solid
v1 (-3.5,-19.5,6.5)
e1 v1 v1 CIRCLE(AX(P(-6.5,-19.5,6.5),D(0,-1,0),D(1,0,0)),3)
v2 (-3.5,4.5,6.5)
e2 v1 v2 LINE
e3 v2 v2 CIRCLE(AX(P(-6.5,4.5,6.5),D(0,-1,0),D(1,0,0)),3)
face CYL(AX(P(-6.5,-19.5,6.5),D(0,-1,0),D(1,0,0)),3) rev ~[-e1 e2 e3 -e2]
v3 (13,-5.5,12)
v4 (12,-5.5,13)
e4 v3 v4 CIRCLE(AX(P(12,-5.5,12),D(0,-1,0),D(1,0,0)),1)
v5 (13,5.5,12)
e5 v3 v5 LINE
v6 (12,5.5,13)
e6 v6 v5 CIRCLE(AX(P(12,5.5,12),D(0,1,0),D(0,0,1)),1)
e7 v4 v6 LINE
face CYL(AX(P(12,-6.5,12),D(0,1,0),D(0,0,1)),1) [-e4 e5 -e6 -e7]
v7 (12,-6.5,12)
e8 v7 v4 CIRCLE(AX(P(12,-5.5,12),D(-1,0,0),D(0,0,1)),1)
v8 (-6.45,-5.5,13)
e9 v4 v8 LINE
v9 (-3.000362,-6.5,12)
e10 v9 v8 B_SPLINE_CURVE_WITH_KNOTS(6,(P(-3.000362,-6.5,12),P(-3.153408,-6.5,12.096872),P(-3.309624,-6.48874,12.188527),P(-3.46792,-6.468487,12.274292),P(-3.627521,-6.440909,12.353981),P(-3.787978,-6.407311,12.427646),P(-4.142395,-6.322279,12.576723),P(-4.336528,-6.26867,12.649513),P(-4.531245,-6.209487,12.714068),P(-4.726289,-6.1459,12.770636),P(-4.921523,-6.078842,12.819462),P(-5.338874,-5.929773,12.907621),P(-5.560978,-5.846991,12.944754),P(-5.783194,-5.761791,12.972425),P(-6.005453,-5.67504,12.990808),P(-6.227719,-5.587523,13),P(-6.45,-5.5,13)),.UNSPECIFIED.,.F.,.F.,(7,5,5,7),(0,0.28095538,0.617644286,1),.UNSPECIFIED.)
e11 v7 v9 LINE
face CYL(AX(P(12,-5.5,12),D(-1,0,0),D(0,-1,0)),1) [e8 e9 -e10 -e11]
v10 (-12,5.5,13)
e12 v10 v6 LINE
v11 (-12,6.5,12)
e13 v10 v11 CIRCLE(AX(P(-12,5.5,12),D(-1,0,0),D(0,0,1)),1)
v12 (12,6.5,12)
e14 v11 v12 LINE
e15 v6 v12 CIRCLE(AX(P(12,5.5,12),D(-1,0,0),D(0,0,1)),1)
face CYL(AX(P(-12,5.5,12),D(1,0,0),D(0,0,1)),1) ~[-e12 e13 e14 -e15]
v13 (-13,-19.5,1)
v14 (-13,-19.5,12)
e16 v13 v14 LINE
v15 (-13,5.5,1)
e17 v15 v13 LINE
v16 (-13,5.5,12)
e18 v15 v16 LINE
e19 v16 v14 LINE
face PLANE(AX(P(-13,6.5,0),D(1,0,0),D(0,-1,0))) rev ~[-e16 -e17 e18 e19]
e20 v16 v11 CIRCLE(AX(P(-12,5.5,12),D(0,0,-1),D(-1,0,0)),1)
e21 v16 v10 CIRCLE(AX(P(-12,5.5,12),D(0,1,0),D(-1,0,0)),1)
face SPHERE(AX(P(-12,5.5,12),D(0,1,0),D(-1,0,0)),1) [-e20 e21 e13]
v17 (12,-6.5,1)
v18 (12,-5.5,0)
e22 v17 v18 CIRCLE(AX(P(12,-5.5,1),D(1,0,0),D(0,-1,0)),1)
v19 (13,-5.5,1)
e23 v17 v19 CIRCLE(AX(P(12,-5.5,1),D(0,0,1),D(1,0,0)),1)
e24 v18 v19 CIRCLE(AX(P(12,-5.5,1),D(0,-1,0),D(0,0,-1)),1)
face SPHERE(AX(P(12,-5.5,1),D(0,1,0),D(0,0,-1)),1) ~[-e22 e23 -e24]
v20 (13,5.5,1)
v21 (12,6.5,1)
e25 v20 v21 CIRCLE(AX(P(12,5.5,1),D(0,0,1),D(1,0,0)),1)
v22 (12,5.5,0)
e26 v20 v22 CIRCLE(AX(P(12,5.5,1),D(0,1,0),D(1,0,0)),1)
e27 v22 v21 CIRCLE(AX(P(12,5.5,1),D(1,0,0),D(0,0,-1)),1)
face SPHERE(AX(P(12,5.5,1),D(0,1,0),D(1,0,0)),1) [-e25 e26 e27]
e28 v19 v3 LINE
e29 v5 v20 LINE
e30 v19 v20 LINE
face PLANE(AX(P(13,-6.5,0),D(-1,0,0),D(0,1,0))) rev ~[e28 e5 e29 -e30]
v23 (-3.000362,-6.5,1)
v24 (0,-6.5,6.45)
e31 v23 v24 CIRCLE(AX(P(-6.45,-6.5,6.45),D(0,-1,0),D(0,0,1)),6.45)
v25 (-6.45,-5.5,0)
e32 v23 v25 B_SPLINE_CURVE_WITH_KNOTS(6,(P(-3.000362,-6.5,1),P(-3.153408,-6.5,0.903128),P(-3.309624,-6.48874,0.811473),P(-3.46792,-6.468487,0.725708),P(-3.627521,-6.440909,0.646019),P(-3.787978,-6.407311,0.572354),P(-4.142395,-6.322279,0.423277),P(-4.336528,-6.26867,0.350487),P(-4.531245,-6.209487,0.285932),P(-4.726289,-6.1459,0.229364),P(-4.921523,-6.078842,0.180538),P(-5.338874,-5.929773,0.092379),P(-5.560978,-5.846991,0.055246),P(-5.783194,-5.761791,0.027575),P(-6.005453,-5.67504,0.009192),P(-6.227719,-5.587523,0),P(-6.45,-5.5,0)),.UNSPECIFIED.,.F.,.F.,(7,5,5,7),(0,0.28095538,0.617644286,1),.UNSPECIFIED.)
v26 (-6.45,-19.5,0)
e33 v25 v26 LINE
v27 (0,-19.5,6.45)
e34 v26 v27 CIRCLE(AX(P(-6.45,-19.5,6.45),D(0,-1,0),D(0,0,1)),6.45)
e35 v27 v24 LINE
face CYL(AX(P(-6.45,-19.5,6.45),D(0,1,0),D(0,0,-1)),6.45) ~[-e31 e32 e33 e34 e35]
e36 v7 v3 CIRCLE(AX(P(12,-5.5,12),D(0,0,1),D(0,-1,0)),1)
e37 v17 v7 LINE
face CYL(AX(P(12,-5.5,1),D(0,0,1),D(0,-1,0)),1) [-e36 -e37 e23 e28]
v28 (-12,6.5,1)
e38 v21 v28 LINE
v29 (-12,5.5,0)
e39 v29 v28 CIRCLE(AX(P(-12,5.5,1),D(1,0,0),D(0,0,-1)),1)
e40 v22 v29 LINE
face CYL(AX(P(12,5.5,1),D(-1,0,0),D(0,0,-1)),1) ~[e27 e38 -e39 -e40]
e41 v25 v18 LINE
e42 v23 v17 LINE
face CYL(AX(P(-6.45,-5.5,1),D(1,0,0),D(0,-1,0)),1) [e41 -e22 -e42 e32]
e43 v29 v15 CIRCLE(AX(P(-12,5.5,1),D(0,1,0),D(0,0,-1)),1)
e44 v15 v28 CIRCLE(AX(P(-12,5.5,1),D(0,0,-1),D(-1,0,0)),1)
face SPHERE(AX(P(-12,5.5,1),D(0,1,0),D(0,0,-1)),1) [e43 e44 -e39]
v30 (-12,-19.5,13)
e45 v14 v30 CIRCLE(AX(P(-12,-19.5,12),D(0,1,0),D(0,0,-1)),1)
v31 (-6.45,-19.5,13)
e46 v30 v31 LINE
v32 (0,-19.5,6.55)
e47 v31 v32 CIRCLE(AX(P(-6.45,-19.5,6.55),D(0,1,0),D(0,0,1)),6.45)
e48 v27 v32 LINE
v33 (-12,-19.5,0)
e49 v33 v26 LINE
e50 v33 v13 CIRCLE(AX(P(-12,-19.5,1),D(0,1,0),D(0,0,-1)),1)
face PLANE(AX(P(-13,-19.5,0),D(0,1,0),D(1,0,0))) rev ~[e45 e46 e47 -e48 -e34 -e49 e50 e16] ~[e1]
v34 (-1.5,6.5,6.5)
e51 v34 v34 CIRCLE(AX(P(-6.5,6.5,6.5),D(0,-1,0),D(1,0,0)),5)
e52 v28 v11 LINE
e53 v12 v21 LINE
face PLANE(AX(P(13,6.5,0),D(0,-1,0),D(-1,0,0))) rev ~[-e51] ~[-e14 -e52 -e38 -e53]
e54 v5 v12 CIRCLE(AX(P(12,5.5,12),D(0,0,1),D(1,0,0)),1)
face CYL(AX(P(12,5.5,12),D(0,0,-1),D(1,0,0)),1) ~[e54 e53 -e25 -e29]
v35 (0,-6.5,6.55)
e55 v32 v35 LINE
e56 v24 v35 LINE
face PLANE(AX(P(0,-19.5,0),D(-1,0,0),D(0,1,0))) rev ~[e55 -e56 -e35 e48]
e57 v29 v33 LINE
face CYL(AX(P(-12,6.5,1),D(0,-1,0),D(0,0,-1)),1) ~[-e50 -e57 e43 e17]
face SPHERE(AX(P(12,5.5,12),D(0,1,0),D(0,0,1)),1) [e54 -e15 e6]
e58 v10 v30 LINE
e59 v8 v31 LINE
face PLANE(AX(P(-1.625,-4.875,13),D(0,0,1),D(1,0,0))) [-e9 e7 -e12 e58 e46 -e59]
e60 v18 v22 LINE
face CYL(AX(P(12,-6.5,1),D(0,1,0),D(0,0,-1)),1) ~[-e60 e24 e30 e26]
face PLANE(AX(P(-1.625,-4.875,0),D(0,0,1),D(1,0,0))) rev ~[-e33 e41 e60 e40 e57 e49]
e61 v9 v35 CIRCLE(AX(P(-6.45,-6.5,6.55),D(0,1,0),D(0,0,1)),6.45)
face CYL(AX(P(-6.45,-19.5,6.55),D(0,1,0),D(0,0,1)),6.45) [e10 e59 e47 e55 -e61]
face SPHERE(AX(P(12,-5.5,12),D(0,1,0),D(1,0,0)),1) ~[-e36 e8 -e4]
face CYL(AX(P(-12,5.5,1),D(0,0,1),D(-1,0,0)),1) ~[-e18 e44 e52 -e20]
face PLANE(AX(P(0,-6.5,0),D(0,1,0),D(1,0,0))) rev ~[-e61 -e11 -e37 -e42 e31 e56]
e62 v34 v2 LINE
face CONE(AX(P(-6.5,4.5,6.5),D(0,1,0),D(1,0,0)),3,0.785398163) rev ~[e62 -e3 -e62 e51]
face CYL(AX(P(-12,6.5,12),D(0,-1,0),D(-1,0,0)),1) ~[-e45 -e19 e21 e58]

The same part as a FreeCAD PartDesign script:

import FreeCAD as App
import Part
import Sketcher

V = App.Vector
Q = App.Units.Quantity


def edges_at(feature, points):
    """Names of the edges that pass closest to the given points."""
    edges = feature.Shape.Edges
    near = lambda p: min(range(len(edges)), key=lambda i: edges[i].distToShape(Part.Vertex(*p))[0])
    return sorted({f"Edge{near(p) + 1}" for p in points})

doc = App.newDocument("Part")
body = doc.addObject("PartDesign::Body", "Body")

sketch1 = doc.addObject("Sketcher::SketchObject", "Sketch")
body.addObject(sketch1)
sketch1.AttachmentSupport = (doc.XY_Plane, [""])
sketch1.MapMode = "FlatFace"
sketch1.addGeometry([
    Part.LineSegment(V(-13, 6, 0), V(-13, -20, 0)),
    Part.LineSegment(V(-13, -20, 0), V(0, -20, 0)),
    Part.LineSegment(V(0, -20, 0), V(0, -6, 0)),
    Part.LineSegment(V(0, -6, 0), V(13, -6, 0)),
    Part.LineSegment(V(13, -6, 0), V(13, 6, 0)),
    Part.LineSegment(V(13, 6, 0), V(-13, 6, 0)),
], False)
sketch1.addConstraint([
    Sketcher.Constraint("Coincident", 0, 2, 1, 1),
    Sketcher.Constraint("Coincident", 1, 2, 2, 1),
    Sketcher.Constraint("Coincident", 2, 2, 3, 1),
    Sketcher.Constraint("Coincident", 3, 2, 4, 1),
    Sketcher.Constraint("Coincident", 4, 2, 5, 1),
    Sketcher.Constraint("Coincident", 5, 2, 0, 1),
    Sketcher.Constraint("Vertical", 0),
    Sketcher.Constraint("Horizontal", 1),
    Sketcher.Constraint("Vertical", 2),
    Sketcher.Constraint("Horizontal", 3),
    Sketcher.Constraint("Vertical", 4),
    Sketcher.Constraint("Horizontal", 5),
    Sketcher.Constraint("Symmetric", 3, 2, 5, 2, -1, 1),
    Sketcher.Constraint("PointOnObject", 1, 2, -2),
    Sketcher.Constraint("Equal", 5, 0),
    Sketcher.Constraint("Equal", 3, 2),
    Sketcher.Constraint("DistanceX", 1, 1, 1, 2, Q("13 mm")),
])
pad1 = doc.addObject("PartDesign::Pad", "Pad")
body.addObject(pad1)
pad1.Profile = sketch1
pad1.Length = 13

sketch2 = doc.addObject("Sketcher::SketchObject", "Sketch001")
body.addObject(sketch2)
sketch2.AttachmentSupport = (doc.XZ_Plane, [""])
sketch2.MapMode = "FlatFace"
sketch2.AttachmentOffset = App.Placement(V(0, 0, 19.5), App.Rotation())
sketch2.addGeometry(Part.Circle(V(-6.5, 6.5, 0), V(0, 0, 1), 3), False)
sketch2.addConstraint([
    Sketcher.Constraint("Diameter", 0, Q("6 mm")),
    Sketcher.Constraint("DistanceX", 0, 3, -1, 1, Q("6.5 mm")),
    Sketcher.Constraint("DistanceY", -1, 1, 0, 3, Q("6.5 mm")),
])
pocket1 = doc.addObject("PartDesign::Pocket", "Pocket")
body.addObject(pocket1)
pocket1.Profile = sketch2
pocket1.Type = "ThroughAll"
doc.recompute()

chamfer = doc.addObject("PartDesign::Chamfer", "Chamfer")
body.addObject(chamfer)
chamfer.Base = (pocket1, edges_at(pocket1, [(-9.5, 6.5, 6.5)]))
chamfer.Size = 2
doc.recompute()

fillet = doc.addObject("PartDesign::Fillet", "Fillet")
body.addObject(fillet)
fillet.Base = (chamfer, edges_at(chamfer, [(0, -13, 13), (0, -13, 0)]))
fillet.Radius = 6.45
doc.recompute()

fillet2 = doc.addObject("PartDesign::Fillet", "Fillet001")
body.addObject(fillet2)
fillet2.Base = (fillet, edges_at(fillet, [
    (-13, -6.5, 13),
    (-13, -6.5, 0),
    (13, 0, 13),
    (13, 0, 0),
]))
fillet2.Radius = 1
doc.recompute()

fillet3 = doc.addObject("PartDesign::Fillet", "Fillet002")
body.addObject(fillet3)
fillet3.Base = (fillet2, edges_at(fillet2, [
    (0, 6.5, 0),
    (0, 6.5, 13),
    (13, 6.5, 6.5),
    (12.707, 6.5, 0.293),
    (12.707, 6.5, 12.707),
]))
fillet3.Radius = 1
doc.recompute()

fillet4 = doc.addObject("PartDesign::Fillet", "Fillet003")
body.addObject(fillet4)
fillet4.Base = (fillet3, edges_at(fillet3, [(2.775, -6.5, 13), (13, -6.5, 6.5), (2.775, -6.5, 0)]))
fillet4.Radius = 1

doc.recompute()
